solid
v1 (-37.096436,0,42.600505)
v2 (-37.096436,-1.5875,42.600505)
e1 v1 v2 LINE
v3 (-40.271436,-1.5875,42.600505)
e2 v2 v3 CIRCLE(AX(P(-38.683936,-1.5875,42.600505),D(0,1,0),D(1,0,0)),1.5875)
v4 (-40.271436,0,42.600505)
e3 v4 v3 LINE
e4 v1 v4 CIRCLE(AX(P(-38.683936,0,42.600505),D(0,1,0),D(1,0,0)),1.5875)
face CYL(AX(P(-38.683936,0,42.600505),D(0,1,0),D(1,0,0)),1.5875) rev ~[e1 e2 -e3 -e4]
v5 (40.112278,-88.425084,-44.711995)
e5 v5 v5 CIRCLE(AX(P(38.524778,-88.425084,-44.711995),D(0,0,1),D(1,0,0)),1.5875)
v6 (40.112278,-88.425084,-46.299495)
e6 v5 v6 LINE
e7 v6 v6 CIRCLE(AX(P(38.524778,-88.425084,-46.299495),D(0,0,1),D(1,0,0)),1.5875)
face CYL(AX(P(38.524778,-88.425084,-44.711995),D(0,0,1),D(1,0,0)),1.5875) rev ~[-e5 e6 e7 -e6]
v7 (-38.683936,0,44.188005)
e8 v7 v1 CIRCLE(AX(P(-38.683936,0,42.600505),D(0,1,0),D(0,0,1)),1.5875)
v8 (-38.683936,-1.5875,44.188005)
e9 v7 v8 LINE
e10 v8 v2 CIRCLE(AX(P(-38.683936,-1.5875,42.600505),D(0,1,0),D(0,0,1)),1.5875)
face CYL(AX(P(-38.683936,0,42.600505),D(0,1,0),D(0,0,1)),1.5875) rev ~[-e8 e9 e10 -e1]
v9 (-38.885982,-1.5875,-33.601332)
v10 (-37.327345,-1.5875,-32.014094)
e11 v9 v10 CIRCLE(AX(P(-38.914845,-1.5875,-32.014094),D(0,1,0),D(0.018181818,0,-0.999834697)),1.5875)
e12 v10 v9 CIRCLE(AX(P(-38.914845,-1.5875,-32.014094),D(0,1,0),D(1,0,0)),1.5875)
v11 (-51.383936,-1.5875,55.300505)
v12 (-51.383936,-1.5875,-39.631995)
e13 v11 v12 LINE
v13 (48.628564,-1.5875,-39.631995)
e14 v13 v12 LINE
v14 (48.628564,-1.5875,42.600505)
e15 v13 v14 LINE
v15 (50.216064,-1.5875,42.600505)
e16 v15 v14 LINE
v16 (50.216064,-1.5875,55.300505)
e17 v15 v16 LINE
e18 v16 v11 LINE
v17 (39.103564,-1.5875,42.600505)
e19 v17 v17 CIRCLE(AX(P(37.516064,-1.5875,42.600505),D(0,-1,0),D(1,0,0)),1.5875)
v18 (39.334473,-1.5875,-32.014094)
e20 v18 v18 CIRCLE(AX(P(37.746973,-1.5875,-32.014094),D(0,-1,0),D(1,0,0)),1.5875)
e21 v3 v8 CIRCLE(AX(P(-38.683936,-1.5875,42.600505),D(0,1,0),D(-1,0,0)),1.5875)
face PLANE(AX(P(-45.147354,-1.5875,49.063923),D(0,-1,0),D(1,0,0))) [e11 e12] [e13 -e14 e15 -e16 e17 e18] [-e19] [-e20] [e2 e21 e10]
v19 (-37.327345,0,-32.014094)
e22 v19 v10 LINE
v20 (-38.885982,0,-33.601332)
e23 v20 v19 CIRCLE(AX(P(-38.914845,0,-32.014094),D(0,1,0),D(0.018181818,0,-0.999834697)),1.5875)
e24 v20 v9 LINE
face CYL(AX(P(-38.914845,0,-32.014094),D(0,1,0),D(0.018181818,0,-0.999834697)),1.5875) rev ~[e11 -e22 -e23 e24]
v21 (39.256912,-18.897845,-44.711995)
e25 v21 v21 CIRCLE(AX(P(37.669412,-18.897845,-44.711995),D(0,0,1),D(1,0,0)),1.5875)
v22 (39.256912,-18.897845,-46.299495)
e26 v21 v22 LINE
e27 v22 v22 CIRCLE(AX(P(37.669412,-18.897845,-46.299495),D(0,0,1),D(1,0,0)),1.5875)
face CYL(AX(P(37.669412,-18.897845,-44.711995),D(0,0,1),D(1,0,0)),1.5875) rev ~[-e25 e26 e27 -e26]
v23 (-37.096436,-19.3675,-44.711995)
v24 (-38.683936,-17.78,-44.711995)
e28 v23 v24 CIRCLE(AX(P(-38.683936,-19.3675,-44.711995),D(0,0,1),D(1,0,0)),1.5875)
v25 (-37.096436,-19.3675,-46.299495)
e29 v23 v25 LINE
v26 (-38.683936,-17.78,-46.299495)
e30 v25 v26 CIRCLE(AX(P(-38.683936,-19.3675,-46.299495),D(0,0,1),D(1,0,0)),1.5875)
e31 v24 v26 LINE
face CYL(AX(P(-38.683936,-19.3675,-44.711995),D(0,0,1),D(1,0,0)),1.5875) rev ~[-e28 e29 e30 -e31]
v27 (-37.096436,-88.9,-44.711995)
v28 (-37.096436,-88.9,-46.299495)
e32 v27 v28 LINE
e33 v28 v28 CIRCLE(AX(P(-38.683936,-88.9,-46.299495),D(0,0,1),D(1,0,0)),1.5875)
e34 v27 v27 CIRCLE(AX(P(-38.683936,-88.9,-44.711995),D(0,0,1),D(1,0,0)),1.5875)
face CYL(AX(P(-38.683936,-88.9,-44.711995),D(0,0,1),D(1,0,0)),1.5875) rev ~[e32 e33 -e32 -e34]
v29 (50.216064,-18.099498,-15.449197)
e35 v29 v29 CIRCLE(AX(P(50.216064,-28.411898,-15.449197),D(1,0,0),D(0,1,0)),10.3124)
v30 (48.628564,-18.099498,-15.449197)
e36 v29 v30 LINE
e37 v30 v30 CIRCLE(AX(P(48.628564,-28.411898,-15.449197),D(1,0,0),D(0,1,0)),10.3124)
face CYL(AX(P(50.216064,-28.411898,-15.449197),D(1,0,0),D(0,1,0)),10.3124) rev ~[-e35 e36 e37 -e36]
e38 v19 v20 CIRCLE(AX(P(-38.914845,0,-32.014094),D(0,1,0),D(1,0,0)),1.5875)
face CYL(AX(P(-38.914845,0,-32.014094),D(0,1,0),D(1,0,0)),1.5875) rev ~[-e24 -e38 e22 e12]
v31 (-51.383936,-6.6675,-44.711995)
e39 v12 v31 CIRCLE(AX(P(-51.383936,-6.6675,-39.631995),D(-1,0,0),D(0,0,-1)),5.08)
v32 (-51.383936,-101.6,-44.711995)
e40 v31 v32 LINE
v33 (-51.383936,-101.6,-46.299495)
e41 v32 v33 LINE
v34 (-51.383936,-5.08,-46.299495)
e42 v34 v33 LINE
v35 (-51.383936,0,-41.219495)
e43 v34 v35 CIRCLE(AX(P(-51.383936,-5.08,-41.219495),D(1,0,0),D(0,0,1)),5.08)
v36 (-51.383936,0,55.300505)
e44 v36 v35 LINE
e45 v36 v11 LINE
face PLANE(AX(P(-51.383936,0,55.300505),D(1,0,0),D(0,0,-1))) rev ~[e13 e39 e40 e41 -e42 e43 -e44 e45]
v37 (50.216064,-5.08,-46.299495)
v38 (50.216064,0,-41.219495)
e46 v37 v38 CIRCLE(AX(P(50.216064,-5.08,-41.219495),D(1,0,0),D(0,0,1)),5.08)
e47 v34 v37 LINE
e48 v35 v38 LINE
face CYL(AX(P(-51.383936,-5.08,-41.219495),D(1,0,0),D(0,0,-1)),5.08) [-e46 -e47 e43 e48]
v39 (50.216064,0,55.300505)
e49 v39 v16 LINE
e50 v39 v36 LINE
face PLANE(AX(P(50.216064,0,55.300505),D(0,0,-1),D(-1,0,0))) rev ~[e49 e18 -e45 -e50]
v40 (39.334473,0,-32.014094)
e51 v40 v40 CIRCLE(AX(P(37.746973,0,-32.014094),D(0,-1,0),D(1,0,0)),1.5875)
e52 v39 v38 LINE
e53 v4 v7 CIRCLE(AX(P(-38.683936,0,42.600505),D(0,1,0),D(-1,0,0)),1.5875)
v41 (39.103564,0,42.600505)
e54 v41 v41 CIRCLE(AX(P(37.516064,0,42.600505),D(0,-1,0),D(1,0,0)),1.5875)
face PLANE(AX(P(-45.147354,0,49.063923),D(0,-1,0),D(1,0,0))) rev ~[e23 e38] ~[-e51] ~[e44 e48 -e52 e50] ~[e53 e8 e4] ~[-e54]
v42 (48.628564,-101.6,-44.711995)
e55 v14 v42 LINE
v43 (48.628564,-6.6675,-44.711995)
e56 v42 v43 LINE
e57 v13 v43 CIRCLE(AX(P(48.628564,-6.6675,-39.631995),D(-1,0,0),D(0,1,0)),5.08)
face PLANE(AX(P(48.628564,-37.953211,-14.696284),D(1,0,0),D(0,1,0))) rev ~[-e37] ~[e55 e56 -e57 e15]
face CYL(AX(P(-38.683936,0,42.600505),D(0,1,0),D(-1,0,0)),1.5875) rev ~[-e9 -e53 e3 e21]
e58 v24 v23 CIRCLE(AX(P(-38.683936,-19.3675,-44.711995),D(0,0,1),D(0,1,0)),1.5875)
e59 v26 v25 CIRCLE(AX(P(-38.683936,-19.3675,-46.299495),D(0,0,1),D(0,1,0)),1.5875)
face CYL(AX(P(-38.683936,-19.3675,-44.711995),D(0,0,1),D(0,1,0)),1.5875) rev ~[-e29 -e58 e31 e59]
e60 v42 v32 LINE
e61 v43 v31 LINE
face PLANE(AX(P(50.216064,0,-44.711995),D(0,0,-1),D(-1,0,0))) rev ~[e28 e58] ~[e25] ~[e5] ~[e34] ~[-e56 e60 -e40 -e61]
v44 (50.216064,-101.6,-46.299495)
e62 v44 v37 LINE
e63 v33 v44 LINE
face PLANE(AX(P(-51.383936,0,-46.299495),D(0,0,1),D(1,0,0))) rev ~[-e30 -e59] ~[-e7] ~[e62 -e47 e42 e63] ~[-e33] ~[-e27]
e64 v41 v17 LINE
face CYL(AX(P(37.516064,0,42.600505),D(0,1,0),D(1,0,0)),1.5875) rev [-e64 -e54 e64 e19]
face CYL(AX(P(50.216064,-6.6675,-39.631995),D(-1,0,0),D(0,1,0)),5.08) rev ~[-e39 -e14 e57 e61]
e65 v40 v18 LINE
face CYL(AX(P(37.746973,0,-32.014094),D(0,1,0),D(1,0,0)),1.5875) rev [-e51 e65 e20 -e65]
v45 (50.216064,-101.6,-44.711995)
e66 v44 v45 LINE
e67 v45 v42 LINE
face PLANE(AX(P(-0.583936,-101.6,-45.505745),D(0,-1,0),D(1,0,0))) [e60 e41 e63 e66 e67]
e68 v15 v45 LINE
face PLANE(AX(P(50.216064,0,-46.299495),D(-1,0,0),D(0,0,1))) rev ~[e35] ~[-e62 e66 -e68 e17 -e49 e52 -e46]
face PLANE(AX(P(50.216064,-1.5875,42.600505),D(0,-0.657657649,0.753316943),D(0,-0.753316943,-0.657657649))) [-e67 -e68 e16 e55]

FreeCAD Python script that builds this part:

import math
import FreeCAD as App
import Part
import Sketcher
from FreeCAD import Vector
Q = App.Units.Quantity


def edges_at(feature, points):
    """Names of the edges that pass closest to the given points."""
    edges = feature.Shape.Edges
    near = lambda p: min(range(len(edges)), key=lambda i: edges[i].distToShape(Part.Vertex(*p))[0])
    return sorted({f"Edge{near(p) + 1}" for p in points})

doc = App.newDocument("Part")
body = doc.addObject("PartDesign::Body", "Body")

sketch1 = body.newObject("Sketcher::SketchObject", "Sketch")
sketch1.AttachmentSupport = (doc.getObject("XZ_Plane"), [""])
sketch1.MapMode = "FlatFace"
sketch1.addGeometry([
    Part.LineSegment(Vector(-51.383936, -44.711995, 0), Vector(-51.383936, -46.299495, 0)),
    Part.LineSegment(Vector(-51.383936, -46.299495, 0), Vector(50.216064, -46.299495, 0)),
    Part.LineSegment(Vector(50.216064, -46.299495, 0), Vector(50.216064, -44.711995, 0)),
    Part.LineSegment(Vector(50.216064, -44.711995, 0), Vector(-51.383936, -44.711995, 0)),
], False)
sketch1.addConstraint([
    Sketcher.Constraint("Coincident", 0, 2, 1, 1),
    Sketcher.Constraint("Coincident", 1, 2, 2, 1),
    Sketcher.Constraint("Coincident", 2, 2, 3, 1),
    Sketcher.Constraint("Coincident", 3, 2, 0, 1),
    Sketcher.Constraint("Vertical", 0),
    Sketcher.Constraint("Horizontal", 1),
    Sketcher.Constraint("Vertical", 2),
    Sketcher.Constraint("Horizontal", 3),
    Sketcher.Constraint("DistanceX", 1, 1, 1, 2, Q("4 in")),
    Sketcher.Constraint("DistanceY", 0, 2, 0, 1, Q("0.0625 in")),
    Sketcher.Constraint("DistanceX", 0, 2, -1, 1, 51.383936),
    Sketcher.Constraint("DistanceY", 0, 2, -1, 1, 46.299495),
])
pad1 = body.newObject("PartDesign::Pad", "Pad")
pad1.Profile = sketch1
pad1.Length = Q("4 in")

sketch2 = body.newObject("Sketcher::SketchObject", "Sketch001")
sketch2.AttachmentSupport = (doc.getObject("XZ_Plane"), [""])
sketch2.MapMode = "FlatFace"
sketch2.addGeometry([
    Part.LineSegment(Vector(-51.383936, 55.300505, 0), Vector(-51.383936, -46.299495, 0)),
    Part.LineSegment(Vector(-51.383936, -46.299495, 0), Vector(50.216064, -46.299495, 0)),
    Part.LineSegment(Vector(50.216064, -46.299495, 0), Vector(50.216064, 55.300505, 0)),
    Part.LineSegment(Vector(50.216064, 55.300505, 0), Vector(-51.383936, 55.300505, 0)),
    Part.ArcOfCircle(Part.Circle(Vector(-38.914845, -32.014094, 0), Vector(0, 0, 1), 1.5875), math.radians(0), math.radians(271.041799)),
    Part.ArcOfCircle(Part.Circle(Vector(-38.914845, -32.014094, 0), Vector(0, 0, 1), 1.5875), math.radians(-88.958201), math.radians(0)),
    Part.Circle(Vector(37.746973, -32.014094, 0), Vector(0, 0, 1), 1.5875),
    Part.ArcOfCircle(Part.Circle(Vector(-38.683936, 42.600505, 0), Vector(0, 0, 1), 1.5875), math.radians(90), math.radians(180)),
    Part.ArcOfCircle(Part.Circle(Vector(-38.683936, 42.600505, 0), Vector(0, 0, 1), 1.5875), math.radians(0), math.radians(90)),
    Part.ArcOfCircle(Part.Circle(Vector(-38.683936, 42.600505, 0), Vector(0, 0, 1), 1.5875), math.radians(180), math.radians(360)),
    Part.Circle(Vector(37.516064, 42.600505, 0), Vector(0, 0, 1), 1.5875),
], False)
sketch2.addConstraint([
    Sketcher.Constraint("Coincident", 0, 2, 1, 1),
    Sketcher.Constraint("Coincident", 1, 2, 2, 1),
    Sketcher.Constraint("Coincident", 2, 2, 3, 1),
    Sketcher.Constraint("Coincident", 3, 2, 0, 1),
    Sketcher.Constraint("Tangent", 4, 1, 5, 2),
    Sketcher.Constraint("Coincident", 5, 1, 4, 2),
    Sketcher.Constraint("Tangent", 7, 1, 8, 2),
    Sketcher.Constraint("Tangent", 8, 1, 9, 2),
    Sketcher.Constraint("Tangent", 9, 1, 7, 2),
    Sketcher.Constraint("Vertical", 0),
    Sketcher.Constraint("Horizontal", 1),
    Sketcher.Constraint("Vertical", 2),
    Sketcher.Constraint("Horizontal", 3),
    Sketcher.Constraint("Equal", 5, 6),
    Sketcher.Constraint("Equal", 6, 7),
    Sketcher.Constraint("Equal", 9, 10),
    Sketcher.Constraint("Horizontal", 5, 3, 6, 3),
    Sketcher.Constraint("Horizontal", 9, 3, 10, 3),
    Sketcher.Constraint("Horizontal", 6, 3, 4, 1),
    Sketcher.Constraint("Horizontal", 10, 3, 8, 1),
    Sketcher.Constraint("Horizontal", 8, 1, 9, 1),
    Sketcher.Constraint("Vertical", 9, 3, 7, 1),
    Sketcher.Constraint("Equal", 3, 0),
    Sketcher.Constraint("DistanceX", 1, 1, 1, 2, Q("4 in")),
    Sketcher.Constraint("Diameter", 6, Q("0.125 in")),
    Sketcher.Constraint("DistanceX", 7, 3, 10, 3, Q("3 in")),
    Sketcher.Constraint("DistanceX", 0, 2, 7, 3, Q("0.5 in")),
    Sketcher.Constraint("DistanceY", 0, 2, 7, 3, Q("3.5 in")),
    Sketcher.Constraint("DistanceY", 4, 3, 7, 3, 74.614599),
    Sketcher.Constraint("DistanceX", 5, 1, -1, 1, 38.885982),
    Sketcher.Constraint("DistanceY", 5, 1, -1, 1, 33.601332),
    Sketcher.Constraint("DistanceX", 4, 3, 6, 3, 76.661818),
    Sketcher.Constraint("DistanceX", 4, 3, 7, 3, 0.230909),
    Sketcher.Constraint("DistanceX", 4, 3, -1, 1, 38.914845),
])
pad2 = body.newObject("PartDesign::Pad", "Pad001")
pad2.Profile = sketch2
pad2.Length = Q("0.0625 in")
doc.recompute()

fillet = body.newObject("PartDesign::Fillet", "Fillet")
fillet.Base = (pad2, edges_at(pad2, [(-0.584, 0, -46.299)]))
fillet.Radius = Q("0.2 in")
doc.recompute()

fillet2 = body.newObject("PartDesign::Fillet", "Fillet001")
fillet2.Base = (fillet, edges_at(fillet, [(-0.584, -1.587, -44.712)]))
fillet2.Radius = Q("0.2 in")

sketch3 = body.newObject("Sketcher::SketchObject", "Sketch002")
sketch3.AttachmentSupport = (doc.getObject("XY_Plane"), [""])
sketch3.MapMode = "FlatFace"
sketch3.AttachmentOffset = App.Placement(Vector(0, 0, -44.711995), App.Rotation())
sketch3.addGeometry([
    Part.ArcOfCircle(Part.Circle(Vector(-38.683936, -19.3675, 0), Vector(0, 0, 1), 1.5875), math.radians(90), math.radians(360)),
    Part.ArcOfCircle(Part.Circle(Vector(-38.683936, -19.3675, 0), Vector(0, 0, 1), 1.5875), math.radians(0), math.radians(90)),
    Part.Circle(Vector(-38.683936, -88.9, 0), Vector(0, 0, 1), 1.5875),
    Part.Circle(Vector(37.669412, -18.897845, 0), Vector(0, 0, 1), 1.5875),
    Part.Circle(Vector(38.524778, -88.425084, 0), Vector(0, 0, 1), 1.5875),
], False)
sketch3.addConstraint([
    Sketcher.Constraint("Tangent", 0, 1, 1, 2),
    Sketcher.Constraint("Coincident", 1, 1, 0, 2),
    Sketcher.Constraint("Equal", 1, 2),
    Sketcher.Constraint("Equal", 2, 3),
    Sketcher.Constraint("Equal", 3, 4),
    Sketcher.Constraint("Horizontal", 0, 3, 1, 1),
    Sketcher.Constraint("Vertical", 1, 3, 2, 3),
    Sketcher.Constraint("Vertical", 2, 3, 0, 1),
    Sketcher.Constraint("Diameter", 2, Q("0.125 in")),
    Sketcher.Constraint("DistanceY", 2, 3, -1, 1, Q("3.5 in")),
    Sketcher.Constraint("DistanceY", 0, 1, -1, 1, Q("0.7 in")),
    Sketcher.Constraint("DistanceX", 0, 3, 3, 3, 76.353348),
    Sketcher.Constraint("DistanceY", 4, 3, 3, 3, 69.527239),
    Sketcher.Constraint("DistanceX", 0, 3, -1, 1, 38.683936),
    Sketcher.Constraint("DistanceY", 3, 3, -1, 1, 18.897845),
    Sketcher.Constraint("DistanceX", -1, 1, 4, 3, 38.524778),
])
pocket1 = body.newObject("PartDesign::Pocket", "Pocket")
pocket1.Profile = sketch3
pocket1.Length = Q("1 in")
body2 = doc.addObject("PartDesign::Body", "Body001")

sketch4 = body2.newObject("Sketcher::SketchObject", "Sketch003")
sketch4.AttachmentSupport = (doc.getObject("YZ_Plane001"), [""])
sketch4.MapMode = "FlatFace"
sketch4.AttachmentOffset = App.Placement(Vector(0, 0, 50.216064), App.Rotation())
sketch4.addGeometry([
    Part.LineSegment(Vector(-1.5875, -44.711995, 0), Vector(-1.5875, 42.600505, 0)),
    Part.LineSegment(Vector(-1.5875, 42.600505, 0), Vector(-101.6, -44.711995, 0)),
    Part.LineSegment(Vector(-101.6, -44.711995, 0), Vector(-1.5875, -44.711995, 0)),
], False)
sketch4.addConstraint([
    Sketcher.Constraint("Coincident", 0, 2, 1, 1),
    Sketcher.Constraint("Coincident", 1, 2, 2, 1),
    Sketcher.Constraint("Coincident", 2, 2, 0, 1),
    Sketcher.Constraint("Vertical", 0),
    Sketcher.Constraint("Horizontal", 2),
    Sketcher.Constraint("DistanceX", 1, 2, -1, 1, Q("4 in")),
    Sketcher.Constraint("DistanceX", 2, 1, 2, 2, Q("3.9375 in")),
    Sketcher.Constraint("DistanceY", 0, 1, 0, 2, Q("3.4375 in")),
    Sketcher.Constraint("DistanceY", -1, 1, 0, 2, 42.600505),
])
pad3 = body2.newObject("PartDesign::Pad", "Pad002")
pad3.Profile = sketch4
pad3.Length = Q("0.0625 in")
pad3.Reversed = True
doc.recompute()

boolean = body2.newObject("PartDesign::Boolean", "Boolean")
boolean.Type = "Fuse"
boolean.addObjects([body])

sketch5 = body2.newObject("Sketcher::SketchObject", "Sketch004")
sketch5.AttachmentSupport = (doc.getObject("YZ_Plane001"), [""])
sketch5.MapMode = "FlatFace"
sketch5.AttachmentOffset = App.Placement(Vector(0, 0, 50.216064), App.Rotation())
sketch5.addGeometry(Part.Circle(Vector(-28.411898, -15.449197, 0), Vector(0, 0, 1), 10.3124), False)
sketch5.addConstraint([
    Sketcher.Constraint("Diameter", 0, Q("0.812 in")),
    Sketcher.Constraint("DistanceX", 0, 3, -1, 1, 28.411898),
    Sketcher.Constraint("DistanceY", 0, 3, -1, 1, 15.449197),
])
pocket2 = body2.newObject("PartDesign::Pocket", "Pocket001")
pocket2.Profile = sketch5
pocket2.Length = Q("1 in")

doc.recompute()
